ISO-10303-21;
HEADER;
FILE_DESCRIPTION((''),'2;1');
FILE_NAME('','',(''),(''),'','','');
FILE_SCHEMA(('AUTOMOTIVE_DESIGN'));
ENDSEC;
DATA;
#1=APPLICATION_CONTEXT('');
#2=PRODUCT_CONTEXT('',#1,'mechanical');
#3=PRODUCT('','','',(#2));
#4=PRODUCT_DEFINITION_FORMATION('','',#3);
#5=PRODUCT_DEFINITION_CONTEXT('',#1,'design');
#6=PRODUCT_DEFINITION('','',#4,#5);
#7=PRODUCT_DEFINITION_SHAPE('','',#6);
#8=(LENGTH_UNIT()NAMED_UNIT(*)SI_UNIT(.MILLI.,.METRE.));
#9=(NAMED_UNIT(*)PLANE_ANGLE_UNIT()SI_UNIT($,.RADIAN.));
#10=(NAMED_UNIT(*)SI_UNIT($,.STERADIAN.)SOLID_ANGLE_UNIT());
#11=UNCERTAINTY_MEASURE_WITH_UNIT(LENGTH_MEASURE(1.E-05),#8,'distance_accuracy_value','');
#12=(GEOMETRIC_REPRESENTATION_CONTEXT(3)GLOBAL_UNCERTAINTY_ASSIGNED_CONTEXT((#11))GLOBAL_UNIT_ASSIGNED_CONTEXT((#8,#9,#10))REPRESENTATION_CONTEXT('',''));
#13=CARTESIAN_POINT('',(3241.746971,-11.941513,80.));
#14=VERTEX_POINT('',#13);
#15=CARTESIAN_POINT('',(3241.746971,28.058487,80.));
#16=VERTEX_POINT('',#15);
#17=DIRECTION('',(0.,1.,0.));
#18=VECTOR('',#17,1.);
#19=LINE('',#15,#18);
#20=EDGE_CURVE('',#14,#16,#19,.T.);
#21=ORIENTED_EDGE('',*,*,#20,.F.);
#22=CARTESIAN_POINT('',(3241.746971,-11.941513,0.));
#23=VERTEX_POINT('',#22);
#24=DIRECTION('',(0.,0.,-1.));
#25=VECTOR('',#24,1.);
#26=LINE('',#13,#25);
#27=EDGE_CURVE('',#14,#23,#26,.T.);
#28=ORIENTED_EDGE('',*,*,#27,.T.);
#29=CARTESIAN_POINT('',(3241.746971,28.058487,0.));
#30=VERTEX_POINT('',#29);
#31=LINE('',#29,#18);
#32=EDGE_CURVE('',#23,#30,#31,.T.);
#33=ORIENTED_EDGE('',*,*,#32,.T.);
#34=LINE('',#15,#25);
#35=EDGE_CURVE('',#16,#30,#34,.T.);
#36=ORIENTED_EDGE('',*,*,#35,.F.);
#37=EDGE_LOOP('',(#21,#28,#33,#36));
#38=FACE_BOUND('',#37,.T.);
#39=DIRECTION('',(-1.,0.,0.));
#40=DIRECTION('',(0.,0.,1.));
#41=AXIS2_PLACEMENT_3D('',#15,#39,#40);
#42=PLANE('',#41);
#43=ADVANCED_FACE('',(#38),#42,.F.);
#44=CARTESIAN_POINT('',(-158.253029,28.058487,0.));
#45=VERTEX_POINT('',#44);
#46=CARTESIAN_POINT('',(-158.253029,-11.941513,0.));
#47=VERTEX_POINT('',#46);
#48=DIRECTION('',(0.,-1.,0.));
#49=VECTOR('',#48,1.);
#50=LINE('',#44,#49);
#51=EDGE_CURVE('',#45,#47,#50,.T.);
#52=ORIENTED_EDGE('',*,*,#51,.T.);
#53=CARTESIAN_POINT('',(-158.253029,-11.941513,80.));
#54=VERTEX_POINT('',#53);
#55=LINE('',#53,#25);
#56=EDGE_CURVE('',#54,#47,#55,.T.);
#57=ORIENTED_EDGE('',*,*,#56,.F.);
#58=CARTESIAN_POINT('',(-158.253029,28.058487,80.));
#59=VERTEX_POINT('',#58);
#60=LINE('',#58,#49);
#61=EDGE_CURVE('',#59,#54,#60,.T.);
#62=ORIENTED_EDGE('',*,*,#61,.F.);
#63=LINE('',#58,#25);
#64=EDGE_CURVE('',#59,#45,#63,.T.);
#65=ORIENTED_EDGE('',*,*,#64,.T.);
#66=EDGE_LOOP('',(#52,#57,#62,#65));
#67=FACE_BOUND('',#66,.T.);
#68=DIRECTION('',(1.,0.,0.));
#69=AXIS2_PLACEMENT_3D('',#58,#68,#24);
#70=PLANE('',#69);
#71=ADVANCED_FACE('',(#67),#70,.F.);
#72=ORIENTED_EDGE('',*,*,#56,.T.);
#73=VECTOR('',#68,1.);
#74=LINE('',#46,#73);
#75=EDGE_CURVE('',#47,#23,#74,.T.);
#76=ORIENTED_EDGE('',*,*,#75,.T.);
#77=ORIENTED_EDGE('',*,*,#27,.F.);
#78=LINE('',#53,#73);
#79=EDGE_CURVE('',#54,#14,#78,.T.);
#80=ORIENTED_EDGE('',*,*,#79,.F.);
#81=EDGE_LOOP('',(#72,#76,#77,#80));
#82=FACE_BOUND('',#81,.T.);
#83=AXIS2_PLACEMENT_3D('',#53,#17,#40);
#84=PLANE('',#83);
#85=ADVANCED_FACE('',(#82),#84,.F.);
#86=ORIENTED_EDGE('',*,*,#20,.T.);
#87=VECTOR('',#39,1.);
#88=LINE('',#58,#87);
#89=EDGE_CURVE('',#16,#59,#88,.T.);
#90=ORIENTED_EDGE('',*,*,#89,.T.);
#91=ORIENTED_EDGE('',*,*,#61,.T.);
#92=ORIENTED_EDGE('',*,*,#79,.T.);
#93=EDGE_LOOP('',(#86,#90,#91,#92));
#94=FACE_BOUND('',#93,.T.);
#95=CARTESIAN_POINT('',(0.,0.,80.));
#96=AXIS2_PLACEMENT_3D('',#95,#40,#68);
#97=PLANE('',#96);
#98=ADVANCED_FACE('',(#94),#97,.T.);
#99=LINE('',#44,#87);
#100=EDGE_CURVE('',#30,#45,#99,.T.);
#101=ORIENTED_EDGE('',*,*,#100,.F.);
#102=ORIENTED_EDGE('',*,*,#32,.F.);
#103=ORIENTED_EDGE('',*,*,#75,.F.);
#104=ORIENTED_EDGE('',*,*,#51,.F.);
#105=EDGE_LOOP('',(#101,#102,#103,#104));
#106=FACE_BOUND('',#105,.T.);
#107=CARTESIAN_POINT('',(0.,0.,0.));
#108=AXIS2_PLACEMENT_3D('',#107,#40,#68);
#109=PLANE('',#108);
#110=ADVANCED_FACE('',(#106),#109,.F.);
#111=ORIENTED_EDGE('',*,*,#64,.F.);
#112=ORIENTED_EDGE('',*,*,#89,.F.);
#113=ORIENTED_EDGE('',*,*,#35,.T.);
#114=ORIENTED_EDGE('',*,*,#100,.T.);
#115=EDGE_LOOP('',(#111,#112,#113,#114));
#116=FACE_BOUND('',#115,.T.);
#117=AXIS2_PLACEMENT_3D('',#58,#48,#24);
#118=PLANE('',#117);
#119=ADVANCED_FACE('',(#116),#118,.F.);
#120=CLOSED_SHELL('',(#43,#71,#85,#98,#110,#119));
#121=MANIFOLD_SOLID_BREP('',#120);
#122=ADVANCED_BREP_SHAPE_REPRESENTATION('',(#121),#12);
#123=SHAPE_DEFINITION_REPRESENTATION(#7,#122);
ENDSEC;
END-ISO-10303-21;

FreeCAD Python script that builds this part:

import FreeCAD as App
import Part
import Sketcher

V = App.Vector


def add_polygon(sketch, points):
    """Adds a closed chain of lines whose ends are joined by coincident constraints."""
    first, n = sketch.GeometryCount, len(points)
    for a, b in zip(points, points[1:] + points[:1]):
        sketch.addGeometry(Part.LineSegment(App.Vector(*a, 0), App.Vector(*b, 0)), False)
    for i in range(n):
        sketch.addConstraint(Sketcher.Constraint("Coincident", first + i, 2, first + (i + 1) % n, 1))

doc = App.newDocument("Part")
params = doc.addObject("Spreadsheet::Sheet", "Params")
for row, (alias, value) in enumerate([
    ("sketch1_width", "3400 mm"),
    ("sketch1_height", "40 mm"),
    ("pad1_length", "80 mm"),
    ("pad2_length", "3400 mm"),
    ("pad3_length", "3400 mm"),
], start=1):
    params.set(f"A{row}", alias)
    params.set(f"B{row}", "=" + value)
    params.setAlias(f"B{row}", alias)

body = doc.addObject("PartDesign::Body", "Body")

# Sketch on XY plane
sketch1 = doc.addObject("Sketcher::SketchObject", "Sketch")
body.addObject(sketch1)
sketch1.AttachmentSupport = (doc.XY_Plane, [""])
sketch1.MapMode = "FlatFace"
add_polygon(sketch1, [(-158.253029, 28.058487), (-158.253029, -11.941513), (3241.746971, -11.941513), (3241.746971, 28.058487)])  # lines 0-3
sketch1.addConstraint([
    Sketcher.Constraint("Vertical", 0),
    Sketcher.Constraint("Horizontal", 1),
    Sketcher.Constraint("Vertical", 2),
    Sketcher.Constraint("Horizontal", 3),
    Sketcher.Constraint("DistanceX", 1, 1, 1, 2, 3400.0),
    Sketcher.Constraint("DistanceY", 0, 2, 0, 1, 40.0),
    Sketcher.Constraint("DistanceX", 0, 2, -1, 1, 158.253029),
    Sketcher.Constraint("DistanceY", 0, 2, -1, 1, 11.941513),
])
sketch1.setExpression("Constraints[8]", "Params.sketch1_width")
sketch1.setExpression("Constraints[9]", "Params.sketch1_height")
pad1 = doc.addObject("PartDesign::Pad", "Pad")
body.addObject(pad1)
pad1.Profile = sketch1
pad1.setExpression("Length", "Params.pad1_length")

# Sketch on YZ plane
sketch2 = doc.addObject("Sketcher::SketchObject", "Sketch001")
body.addObject(sketch2)
sketch2.AttachmentSupport = (doc.YZ_Plane, [""])
sketch2.MapMode = "FlatFace"
sketch2.AttachmentOffset = App.Placement(V(0, 0, -158.253029), App.Rotation())
add_polygon(sketch2, [(23.081064, 5.828603), (-7.754991, 5.828603), (-7.754991, 76.555503), (23.081064, 76.555503)])  # lines 0-3
sketch2.addConstraint([
    Sketcher.Constraint("Horizontal", 0),
    Sketcher.Constraint("Vertical", 1),
    Sketcher.Constraint("Horizontal", 2),
    Sketcher.Constraint("Vertical", 3),
    Sketcher.Constraint("DistanceY", 1, 1, 1, 2, 70.7269),
    Sketcher.Constraint("DistanceX", 0, 2, 0, 1, 30.836055),
    Sketcher.Constraint("DistanceX", 0, 2, -1, 1, 7.754991),
    Sketcher.Constraint("DistanceY", -1, 1, 0, 2, 5.828603),
])
pad2 = doc.addObject("PartDesign::Pad", "Pad001")
body.addObject(pad2)
pad2.Profile = sketch2
pad2.setExpression("Length", "Params.pad2_length")

# Sketch on YZ plane
sketch3 = doc.addObject("Sketcher::SketchObject", "Sketch002")
body.addObject(sketch3)
sketch3.AttachmentSupport = (doc.YZ_Plane, [""])
sketch3.MapMode = "FlatFace"
sketch3.AttachmentOffset = App.Placement(V(0, 0, 3241.746971), App.Rotation())
add_polygon(sketch3, [(19.913374, 70.04786), (-6.825274, 70.04786), (-6.825274, 7.903064), (19.913374, 7.903064)])  # lines 0-3
sketch3.addConstraint([
    Sketcher.Constraint("Horizontal", 0),
    Sketcher.Constraint("Vertical", 1),
    Sketcher.Constraint("Horizontal", 2),
    Sketcher.Constraint("Vertical", 3),
    Sketcher.Constraint("DistanceX", 0, 2, 0, 1, 26.738648),
    Sketcher.Constraint("DistanceY", 1, 2, 1, 1, 62.144797),
    Sketcher.Constraint("DistanceY", -1, 1, 0, 2, 70.04786),
    Sketcher.Constraint("DistanceX", 0, 2, -1, 1, 6.825274),
])
pad3 = doc.addObject("PartDesign::Pad", "Pad002")
body.addObject(pad3)
pad3.Profile = sketch3
pad3.setExpression("Length", "Params.pad3_length")
pad3.Reversed = True

doc.recompute()
